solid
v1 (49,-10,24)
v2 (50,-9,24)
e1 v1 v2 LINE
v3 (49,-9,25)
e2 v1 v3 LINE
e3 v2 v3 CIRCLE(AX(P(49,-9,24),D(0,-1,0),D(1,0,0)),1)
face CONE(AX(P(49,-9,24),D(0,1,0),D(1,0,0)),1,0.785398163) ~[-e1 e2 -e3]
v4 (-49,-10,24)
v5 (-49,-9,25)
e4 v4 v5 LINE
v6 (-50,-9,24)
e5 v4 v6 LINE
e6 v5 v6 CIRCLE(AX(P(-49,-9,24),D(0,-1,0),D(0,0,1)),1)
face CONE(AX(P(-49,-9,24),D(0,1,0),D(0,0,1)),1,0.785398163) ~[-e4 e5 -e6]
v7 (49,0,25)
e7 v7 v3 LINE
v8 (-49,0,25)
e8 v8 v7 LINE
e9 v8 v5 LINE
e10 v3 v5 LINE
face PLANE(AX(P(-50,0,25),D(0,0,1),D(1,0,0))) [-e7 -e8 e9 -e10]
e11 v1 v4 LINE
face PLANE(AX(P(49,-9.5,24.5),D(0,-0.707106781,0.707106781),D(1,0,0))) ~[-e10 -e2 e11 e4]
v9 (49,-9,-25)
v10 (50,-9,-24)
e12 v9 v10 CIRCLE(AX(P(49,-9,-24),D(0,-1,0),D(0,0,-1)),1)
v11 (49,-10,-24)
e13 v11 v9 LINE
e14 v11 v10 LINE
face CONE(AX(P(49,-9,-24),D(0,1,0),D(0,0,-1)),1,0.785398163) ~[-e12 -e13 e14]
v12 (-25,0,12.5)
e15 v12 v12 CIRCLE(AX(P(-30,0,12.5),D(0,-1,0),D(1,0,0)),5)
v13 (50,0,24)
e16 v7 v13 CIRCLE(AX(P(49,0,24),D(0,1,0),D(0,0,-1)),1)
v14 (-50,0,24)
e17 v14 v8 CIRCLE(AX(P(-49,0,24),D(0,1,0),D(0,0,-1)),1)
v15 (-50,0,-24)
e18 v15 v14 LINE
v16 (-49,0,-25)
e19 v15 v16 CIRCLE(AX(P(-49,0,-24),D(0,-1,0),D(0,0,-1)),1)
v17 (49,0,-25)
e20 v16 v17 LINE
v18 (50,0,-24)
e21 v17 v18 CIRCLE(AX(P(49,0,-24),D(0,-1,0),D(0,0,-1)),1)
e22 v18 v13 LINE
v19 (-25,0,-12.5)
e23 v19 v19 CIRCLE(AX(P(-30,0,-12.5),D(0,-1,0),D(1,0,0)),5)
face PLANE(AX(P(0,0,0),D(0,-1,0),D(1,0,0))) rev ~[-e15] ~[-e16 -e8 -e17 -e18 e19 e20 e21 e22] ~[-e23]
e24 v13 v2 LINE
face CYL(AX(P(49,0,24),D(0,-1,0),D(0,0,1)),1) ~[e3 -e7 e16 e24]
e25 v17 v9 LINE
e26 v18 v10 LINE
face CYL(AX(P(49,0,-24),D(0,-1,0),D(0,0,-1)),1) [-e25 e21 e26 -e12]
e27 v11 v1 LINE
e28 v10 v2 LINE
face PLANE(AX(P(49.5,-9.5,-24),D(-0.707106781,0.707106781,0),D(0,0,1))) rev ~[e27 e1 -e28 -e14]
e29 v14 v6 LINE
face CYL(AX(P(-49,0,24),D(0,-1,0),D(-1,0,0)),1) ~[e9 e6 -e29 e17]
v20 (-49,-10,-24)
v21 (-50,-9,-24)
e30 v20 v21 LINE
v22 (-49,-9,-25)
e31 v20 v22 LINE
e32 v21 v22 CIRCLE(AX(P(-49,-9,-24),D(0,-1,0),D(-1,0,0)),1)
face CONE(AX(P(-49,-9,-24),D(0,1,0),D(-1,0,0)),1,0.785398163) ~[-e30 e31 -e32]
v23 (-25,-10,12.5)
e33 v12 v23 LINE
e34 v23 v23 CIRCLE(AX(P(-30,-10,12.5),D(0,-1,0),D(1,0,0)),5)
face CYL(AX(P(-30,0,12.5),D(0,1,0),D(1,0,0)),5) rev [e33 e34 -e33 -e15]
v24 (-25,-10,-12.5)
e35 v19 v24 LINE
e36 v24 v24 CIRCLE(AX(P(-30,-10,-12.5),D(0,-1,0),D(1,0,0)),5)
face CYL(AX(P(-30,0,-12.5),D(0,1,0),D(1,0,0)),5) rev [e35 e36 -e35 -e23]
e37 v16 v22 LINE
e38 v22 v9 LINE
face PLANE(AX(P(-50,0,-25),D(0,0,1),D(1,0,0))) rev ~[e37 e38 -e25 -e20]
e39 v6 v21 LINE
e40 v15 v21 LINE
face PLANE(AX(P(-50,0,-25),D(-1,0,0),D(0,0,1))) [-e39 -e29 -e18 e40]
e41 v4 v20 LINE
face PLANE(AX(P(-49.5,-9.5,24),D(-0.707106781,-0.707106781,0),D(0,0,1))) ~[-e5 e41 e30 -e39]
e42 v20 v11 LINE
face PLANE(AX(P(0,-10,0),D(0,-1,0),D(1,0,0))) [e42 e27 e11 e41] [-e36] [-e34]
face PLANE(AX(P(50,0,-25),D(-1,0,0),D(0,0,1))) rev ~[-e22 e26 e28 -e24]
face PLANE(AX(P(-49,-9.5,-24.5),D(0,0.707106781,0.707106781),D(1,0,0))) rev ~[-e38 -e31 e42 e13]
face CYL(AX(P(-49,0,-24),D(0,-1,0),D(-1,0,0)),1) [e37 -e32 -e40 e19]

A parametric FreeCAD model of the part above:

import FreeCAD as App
import Part
import Sketcher
Q = App.Units.Quantity


def edges_at(feature, points):
    """Names of the edges that pass closest to the given points."""
    edges = feature.Shape.Edges
    near = lambda p: min(range(len(edges)), key=lambda i: edges[i].distToShape(Part.Vertex(*p))[0])
    return sorted({f"Edge{near(p) + 1}" for p in points})

doc = App.newDocument("Part")
body = doc.addObject("PartDesign::Body", "Body")

# Sketch on XZ plane
sketch1 = body.newObject("Sketcher::SketchObject", "Sketch")
sketch1.AttachmentSupport = (doc.getObject("XZ_Plane"), [""])
sketch1.MapMode = "FlatFace"
sketch1.addGeometry([
    Part.LineSegment(App.Vector(-50, 25, 0), App.Vector(-50, -25, 0)),  # 0
    Part.LineSegment(App.Vector(-50, -25, 0), App.Vector(50, -25, 0)),  # 1
    Part.LineSegment(App.Vector(50, -25, 0), App.Vector(50, 25, 0)),  # 2
    Part.LineSegment(App.Vector(50, 25, 0), App.Vector(-50, 25, 0)),  # 3
    Part.Circle(App.Vector(-30, -12, 0), App.Vector(0, 0, 1), 5),  # 4
    Part.Circle(App.Vector(-30, 12, 0), App.Vector(0, 0, 1), 5),  # 5
], False)
sketch1.addConstraint([
    Sketcher.Constraint("Coincident", 0, 2, 1, 1),
    Sketcher.Constraint("Coincident", 1, 2, 2, 1),
    Sketcher.Constraint("Coincident", 2, 2, 3, 1),
    Sketcher.Constraint("Coincident", 3, 2, 0, 1),
    Sketcher.Constraint("Vertical", 0),
    Sketcher.Constraint("Horizontal", 1),
    Sketcher.Constraint("Vertical", 2),
    Sketcher.Constraint("Horizontal", 3),
    Sketcher.Constraint("Equal", 4, 5),
    Sketcher.Constraint("Symmetric", 0, 2, 2, 2, -1, 1),
    Sketcher.Constraint("Symmetric", 4, 3, 5, 3, -1),
    Sketcher.Constraint("Diameter", 4, Q("10 mm")),
    Sketcher.Constraint("DistanceX", 1, 1, 1, 2, Q("100 mm")),
    Sketcher.Constraint("DistanceY", 0, 2, 0, 1, Q("50 mm")),
    Sketcher.Constraint("DistanceX", 4, 3, -1, 1, Q("30 mm")),
    Sketcher.Constraint("DistanceY", 4, 3, 5, 3, Q("25 mm")),
])
pad1 = body.newObject("PartDesign::Pad", "Pad")
pad1.Profile = sketch1
pad1.Length = 10
doc.recompute()

fillet = body.newObject("PartDesign::Fillet", "Fillet")
fillet.Base = (pad1, edges_at(pad1, [
    (50, -5, -25),
    (-50, -5, -25),
    (-50, -5, 25),
    (50, -5, 25),
]))
fillet.Radius = 1
doc.recompute()

chamfer = body.newObject("PartDesign::Chamfer", "Chamfer")
chamfer.Base = (fillet, edges_at(fillet, [
    (50, -10, 0),
    (0, -10, -25),
    (-50, -10, 0),
    (0, -10, 25),
]))
chamfer.Size = 1

doc.recompute()
